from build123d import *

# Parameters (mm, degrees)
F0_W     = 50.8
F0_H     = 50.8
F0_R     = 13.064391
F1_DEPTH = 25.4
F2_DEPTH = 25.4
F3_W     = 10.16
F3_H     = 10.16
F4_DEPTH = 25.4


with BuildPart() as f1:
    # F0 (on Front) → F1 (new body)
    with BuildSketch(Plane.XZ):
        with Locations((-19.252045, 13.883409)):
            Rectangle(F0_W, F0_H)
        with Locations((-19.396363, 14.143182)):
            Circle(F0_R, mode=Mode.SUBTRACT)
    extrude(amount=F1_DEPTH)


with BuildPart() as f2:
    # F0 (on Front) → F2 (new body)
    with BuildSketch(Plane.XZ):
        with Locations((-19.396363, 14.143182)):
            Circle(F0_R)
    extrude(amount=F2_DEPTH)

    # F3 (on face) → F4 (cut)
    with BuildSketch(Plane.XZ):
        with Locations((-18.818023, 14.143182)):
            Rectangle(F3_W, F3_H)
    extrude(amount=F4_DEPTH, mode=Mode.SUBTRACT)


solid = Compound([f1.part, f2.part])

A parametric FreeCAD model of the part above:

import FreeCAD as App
import Part
import Sketcher
from FreeCAD import Vector
Q = App.Units.Quantity


def add_polygon(sketch, points):
    """Adds a closed chain of lines whose ends are joined by coincident constraints."""
    first, n = sketch.GeometryCount, len(points)
    for a, b in zip(points, points[1:] + points[:1]):
        sketch.addGeometry(Part.LineSegment(App.Vector(*a, 0), App.Vector(*b, 0)), False)
    for i in range(n):
        sketch.addConstraint(Sketcher.Constraint("Coincident", first + i, 2, first + (i + 1) % n, 1))

doc = App.newDocument("Part")
body = doc.addObject("PartDesign::Body", "Body")

# Sketch on XZ plane
sketch1 = doc.addObject("Sketcher::SketchObject", "Sketch")
body.addObject(sketch1)
sketch1.AttachmentSupport = (doc.XZ_Plane, [""])
sketch1.MapMode = "FlatFace"
add_polygon(sketch1, [(-45, 39), (-45, -12), (6, -12), (6, 39)])  # lines 0-3
sketch1.addGeometry(Part.Circle(Vector(-19, 14, 0), Vector(0, 0, 1), 13), False)  # 4
sketch1.addConstraint(Sketcher.Constraint("Vertical", 0))
sketch1.addConstraint(Sketcher.Constraint("Horizontal", 1))
sketch1.addConstraint(Sketcher.Constraint("Vertical", 2))
sketch1.addConstraint(Sketcher.Constraint("Horizontal", 3))
sketch1.addConstraint(Sketcher.Constraint("Equal", 3, 0))
sketch1.addConstraint(Sketcher.Constraint("DistanceX", 1, 1, 1, 2, Q("2 in")))
sketch1.addConstraint(Sketcher.Constraint("Diameter", 4, Q("26.128782 mm")))
sketch1.addConstraint(Sketcher.Constraint("DistanceY", 0, 2, -1, 1, Q("11.516591 mm")))
sketch1.addConstraint(Sketcher.Constraint("DistanceX", 0, 2, 4, 3, Q("25.255682 mm")))
sketch1.addConstraint(Sketcher.Constraint("DistanceX", 4, 3, -1, 1, Q("19.396363 mm")))
sketch1.addConstraint(Sketcher.Constraint("DistanceY", -1, 1, 4, 3, Q("14.143182 mm")))
pad1 = doc.addObject("PartDesign::Pad", "Pad")
body.addObject(pad1)
pad1.Profile = sketch1
pad1.Length = Q("1 in")
body2 = doc.addObject("PartDesign::Body", "Body001")

# Sketch on XZ plane
sketch2 = doc.addObject("Sketcher::SketchObject", "Sketch001")
body2.addObject(sketch2)
sketch2.AttachmentSupport = (doc.getObject("XZ_Plane001"), [""])
sketch2.MapMode = "FlatFace"
sketch2.addGeometry(Part.Circle(Vector(-19, 14, 0), Vector(0, 0, 1), 13), False)
sketch2.addConstraint(Sketcher.Constraint("Diameter", 0, Q("26.128782 mm")))
sketch2.addConstraint(Sketcher.Constraint("DistanceX", 0, 3, -1, 1, Q("19.396363 mm")))
sketch2.addConstraint(Sketcher.Constraint("DistanceY", -1, 1, 0, 3, Q("14.143182 mm")))
pad2 = doc.addObject("PartDesign::Pad", "Pad001")
body2.addObject(pad2)
pad2.Profile = sketch2
pad2.Length = Q("1 in")

# Sketch on XZ plane
sketch3 = doc.addObject("Sketcher::SketchObject", "Sketch002")
body2.addObject(sketch3)
sketch3.AttachmentSupport = (doc.getObject("XZ_Plane001"), [""])
sketch3.MapMode = "FlatFace"
add_polygon(sketch3, [(-24, 19), (-24, 9), (-14, 9), (-14, 19)])  # lines 0-3
sketch3.addConstraint(Sketcher.Constraint("Vertical", 0))
sketch3.addConstraint(Sketcher.Constraint("Horizontal", 1))
sketch3.addConstraint(Sketcher.Constraint("Vertical", 2))
sketch3.addConstraint(Sketcher.Constraint("Horizontal", 3))
sketch3.addConstraint(Sketcher.Constraint("Equal", 3, 0))
sketch3.addConstraint(Sketcher.Constraint("DistanceX", 1, 1, 1, 2, Q("0.4 in")))
sketch3.addConstraint(Sketcher.Constraint("DistanceX", 0, 2, -1, 1, Q("23.898023 mm")))
sketch3.addConstraint(Sketcher.Constraint("DistanceY", -1, 1, 0, 2, Q("9.063182 mm")))
pocket1 = doc.addObject("PartDesign::Pocket", "Pocket")
body2.addObject(pocket1)
pocket1.Profile = sketch3
pocket1.Length = Q("1 in")
pocket1.Reversed = True

doc.recompute()
